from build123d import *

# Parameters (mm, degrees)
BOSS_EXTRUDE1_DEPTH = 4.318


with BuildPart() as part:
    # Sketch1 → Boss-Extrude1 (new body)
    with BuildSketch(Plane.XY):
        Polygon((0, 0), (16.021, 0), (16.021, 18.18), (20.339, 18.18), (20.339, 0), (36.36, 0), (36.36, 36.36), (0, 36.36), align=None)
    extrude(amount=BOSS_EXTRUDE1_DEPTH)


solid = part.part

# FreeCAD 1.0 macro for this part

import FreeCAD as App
import Part
import Sketcher
Q = App.Units.Quantity

doc = App.newDocument("Part")
params = doc.addObject("Spreadsheet::Sheet", "Params")
for row, (alias, value) in enumerate([
    ("sketch1_width", "0.17 in"),
    ("pad1_length", "0.17 in"),
], start=1):
    params.set(f"A{row}", alias)
    params.set(f"B{row}", "=" + value)
    params.setAlias(f"B{row}", alias)

body = doc.addObject("PartDesign::Body", "Body")

sketch1 = doc.addObject("Sketcher::SketchObject", "Sketch")
body.addObject(sketch1)
sketch1.AttachmentSupport = (doc.XY_Plane, [""])
sketch1.MapMode = "FlatFace"
sketch1.addGeometry(Part.LineSegment(App.Vector(0, 0, 0), App.Vector(16, 0, 0)), False)
sketch1.addGeometry(Part.LineSegment(App.Vector(16, 0, 0), App.Vector(16, 18.2, 0)), False)
sketch1.addGeometry(Part.LineSegment(App.Vector(16, 18.2, 0), App.Vector(20.3, 18.2, 0)), False)
sketch1.addGeometry(Part.LineSegment(App.Vector(20.3, 18.2, 0), App.Vector(20.3, 0, 0)), False)
sketch1.addGeometry(Part.LineSegment(App.Vector(20.3, 0, 0), App.Vector(36.4, 0, 0)), False)
sketch1.addGeometry(Part.LineSegment(App.Vector(36.4, 0, 0), App.Vector(36.4, 36.4, 0)), False)
sketch1.addGeometry(Part.LineSegment(App.Vector(36.4, 36.4, 0), App.Vector(0, 36.4, 0)), False)
sketch1.addGeometry(Part.LineSegment(App.Vector(0, 36.4, 0), App.Vector(0, 0, 0)), False)
sketch1.addConstraint(Sketcher.Constraint("Coincident", 0, 2, 1, 1))
sketch1.addConstraint(Sketcher.Constraint("Coincident", 1, 2, 2, 1))
sketch1.addConstraint(Sketcher.Constraint("Coincident", 2, 2, 3, 1))
sketch1.addConstraint(Sketcher.Constraint("Coincident", 3, 2, 4, 1))
sketch1.addConstraint(Sketcher.Constraint("Coincident", 4, 2, 5, 1))
sketch1.addConstraint(Sketcher.Constraint("Coincident", 5, 2, 6, 1))
sketch1.addConstraint(Sketcher.Constraint("Coincident", 6, 2, 7, 1))
sketch1.addConstraint(Sketcher.Constraint("Coincident", 7, 2, 0, 1))
sketch1.addConstraint(Sketcher.Constraint("Horizontal", 0))
sketch1.addConstraint(Sketcher.Constraint("Vertical", 1))
sketch1.addConstraint(Sketcher.Constraint("Horizontal", 2))
sketch1.addConstraint(Sketcher.Constraint("Vertical", 3))
sketch1.addConstraint(Sketcher.Constraint("Horizontal", 4))
sketch1.addConstraint(Sketcher.Constraint("Vertical", 5))
sketch1.addConstraint(Sketcher.Constraint("Horizontal", 6))
sketch1.addConstraint(Sketcher.Constraint("Vertical", 7))
sketch1.addConstraint(Sketcher.Constraint("Coincident", 7, 2, -1, 1))
sketch1.addConstraint(Sketcher.Constraint("PointOnObject", 3, 2, -1))
sketch1.addConstraint(Sketcher.Constraint("Equal", 0, 4))
sketch1.addConstraint(Sketcher.Constraint("Equal", 6, 5))
sketch1.addConstraint(Sketcher.Constraint("DistanceX", 2, 1, 2, 2, Q("0.17 in")))
sketch1.addConstraint(Sketcher.Constraint("DistanceX", 0, 1, 0, 2, 16.021))
sketch1.addConstraint(Sketcher.Constraint("DistanceY", 1, 1, 1, 2, 18.18))
sketch1.setExpression("Constraints[20]", "Params.sketch1_width")
pad1 = doc.addObject("PartDesign::Pad", "Pad")
body.addObject(pad1)
pad1.Profile = sketch1
pad1.setExpression("Length", "Params.pad1_length")

doc.recompute()
